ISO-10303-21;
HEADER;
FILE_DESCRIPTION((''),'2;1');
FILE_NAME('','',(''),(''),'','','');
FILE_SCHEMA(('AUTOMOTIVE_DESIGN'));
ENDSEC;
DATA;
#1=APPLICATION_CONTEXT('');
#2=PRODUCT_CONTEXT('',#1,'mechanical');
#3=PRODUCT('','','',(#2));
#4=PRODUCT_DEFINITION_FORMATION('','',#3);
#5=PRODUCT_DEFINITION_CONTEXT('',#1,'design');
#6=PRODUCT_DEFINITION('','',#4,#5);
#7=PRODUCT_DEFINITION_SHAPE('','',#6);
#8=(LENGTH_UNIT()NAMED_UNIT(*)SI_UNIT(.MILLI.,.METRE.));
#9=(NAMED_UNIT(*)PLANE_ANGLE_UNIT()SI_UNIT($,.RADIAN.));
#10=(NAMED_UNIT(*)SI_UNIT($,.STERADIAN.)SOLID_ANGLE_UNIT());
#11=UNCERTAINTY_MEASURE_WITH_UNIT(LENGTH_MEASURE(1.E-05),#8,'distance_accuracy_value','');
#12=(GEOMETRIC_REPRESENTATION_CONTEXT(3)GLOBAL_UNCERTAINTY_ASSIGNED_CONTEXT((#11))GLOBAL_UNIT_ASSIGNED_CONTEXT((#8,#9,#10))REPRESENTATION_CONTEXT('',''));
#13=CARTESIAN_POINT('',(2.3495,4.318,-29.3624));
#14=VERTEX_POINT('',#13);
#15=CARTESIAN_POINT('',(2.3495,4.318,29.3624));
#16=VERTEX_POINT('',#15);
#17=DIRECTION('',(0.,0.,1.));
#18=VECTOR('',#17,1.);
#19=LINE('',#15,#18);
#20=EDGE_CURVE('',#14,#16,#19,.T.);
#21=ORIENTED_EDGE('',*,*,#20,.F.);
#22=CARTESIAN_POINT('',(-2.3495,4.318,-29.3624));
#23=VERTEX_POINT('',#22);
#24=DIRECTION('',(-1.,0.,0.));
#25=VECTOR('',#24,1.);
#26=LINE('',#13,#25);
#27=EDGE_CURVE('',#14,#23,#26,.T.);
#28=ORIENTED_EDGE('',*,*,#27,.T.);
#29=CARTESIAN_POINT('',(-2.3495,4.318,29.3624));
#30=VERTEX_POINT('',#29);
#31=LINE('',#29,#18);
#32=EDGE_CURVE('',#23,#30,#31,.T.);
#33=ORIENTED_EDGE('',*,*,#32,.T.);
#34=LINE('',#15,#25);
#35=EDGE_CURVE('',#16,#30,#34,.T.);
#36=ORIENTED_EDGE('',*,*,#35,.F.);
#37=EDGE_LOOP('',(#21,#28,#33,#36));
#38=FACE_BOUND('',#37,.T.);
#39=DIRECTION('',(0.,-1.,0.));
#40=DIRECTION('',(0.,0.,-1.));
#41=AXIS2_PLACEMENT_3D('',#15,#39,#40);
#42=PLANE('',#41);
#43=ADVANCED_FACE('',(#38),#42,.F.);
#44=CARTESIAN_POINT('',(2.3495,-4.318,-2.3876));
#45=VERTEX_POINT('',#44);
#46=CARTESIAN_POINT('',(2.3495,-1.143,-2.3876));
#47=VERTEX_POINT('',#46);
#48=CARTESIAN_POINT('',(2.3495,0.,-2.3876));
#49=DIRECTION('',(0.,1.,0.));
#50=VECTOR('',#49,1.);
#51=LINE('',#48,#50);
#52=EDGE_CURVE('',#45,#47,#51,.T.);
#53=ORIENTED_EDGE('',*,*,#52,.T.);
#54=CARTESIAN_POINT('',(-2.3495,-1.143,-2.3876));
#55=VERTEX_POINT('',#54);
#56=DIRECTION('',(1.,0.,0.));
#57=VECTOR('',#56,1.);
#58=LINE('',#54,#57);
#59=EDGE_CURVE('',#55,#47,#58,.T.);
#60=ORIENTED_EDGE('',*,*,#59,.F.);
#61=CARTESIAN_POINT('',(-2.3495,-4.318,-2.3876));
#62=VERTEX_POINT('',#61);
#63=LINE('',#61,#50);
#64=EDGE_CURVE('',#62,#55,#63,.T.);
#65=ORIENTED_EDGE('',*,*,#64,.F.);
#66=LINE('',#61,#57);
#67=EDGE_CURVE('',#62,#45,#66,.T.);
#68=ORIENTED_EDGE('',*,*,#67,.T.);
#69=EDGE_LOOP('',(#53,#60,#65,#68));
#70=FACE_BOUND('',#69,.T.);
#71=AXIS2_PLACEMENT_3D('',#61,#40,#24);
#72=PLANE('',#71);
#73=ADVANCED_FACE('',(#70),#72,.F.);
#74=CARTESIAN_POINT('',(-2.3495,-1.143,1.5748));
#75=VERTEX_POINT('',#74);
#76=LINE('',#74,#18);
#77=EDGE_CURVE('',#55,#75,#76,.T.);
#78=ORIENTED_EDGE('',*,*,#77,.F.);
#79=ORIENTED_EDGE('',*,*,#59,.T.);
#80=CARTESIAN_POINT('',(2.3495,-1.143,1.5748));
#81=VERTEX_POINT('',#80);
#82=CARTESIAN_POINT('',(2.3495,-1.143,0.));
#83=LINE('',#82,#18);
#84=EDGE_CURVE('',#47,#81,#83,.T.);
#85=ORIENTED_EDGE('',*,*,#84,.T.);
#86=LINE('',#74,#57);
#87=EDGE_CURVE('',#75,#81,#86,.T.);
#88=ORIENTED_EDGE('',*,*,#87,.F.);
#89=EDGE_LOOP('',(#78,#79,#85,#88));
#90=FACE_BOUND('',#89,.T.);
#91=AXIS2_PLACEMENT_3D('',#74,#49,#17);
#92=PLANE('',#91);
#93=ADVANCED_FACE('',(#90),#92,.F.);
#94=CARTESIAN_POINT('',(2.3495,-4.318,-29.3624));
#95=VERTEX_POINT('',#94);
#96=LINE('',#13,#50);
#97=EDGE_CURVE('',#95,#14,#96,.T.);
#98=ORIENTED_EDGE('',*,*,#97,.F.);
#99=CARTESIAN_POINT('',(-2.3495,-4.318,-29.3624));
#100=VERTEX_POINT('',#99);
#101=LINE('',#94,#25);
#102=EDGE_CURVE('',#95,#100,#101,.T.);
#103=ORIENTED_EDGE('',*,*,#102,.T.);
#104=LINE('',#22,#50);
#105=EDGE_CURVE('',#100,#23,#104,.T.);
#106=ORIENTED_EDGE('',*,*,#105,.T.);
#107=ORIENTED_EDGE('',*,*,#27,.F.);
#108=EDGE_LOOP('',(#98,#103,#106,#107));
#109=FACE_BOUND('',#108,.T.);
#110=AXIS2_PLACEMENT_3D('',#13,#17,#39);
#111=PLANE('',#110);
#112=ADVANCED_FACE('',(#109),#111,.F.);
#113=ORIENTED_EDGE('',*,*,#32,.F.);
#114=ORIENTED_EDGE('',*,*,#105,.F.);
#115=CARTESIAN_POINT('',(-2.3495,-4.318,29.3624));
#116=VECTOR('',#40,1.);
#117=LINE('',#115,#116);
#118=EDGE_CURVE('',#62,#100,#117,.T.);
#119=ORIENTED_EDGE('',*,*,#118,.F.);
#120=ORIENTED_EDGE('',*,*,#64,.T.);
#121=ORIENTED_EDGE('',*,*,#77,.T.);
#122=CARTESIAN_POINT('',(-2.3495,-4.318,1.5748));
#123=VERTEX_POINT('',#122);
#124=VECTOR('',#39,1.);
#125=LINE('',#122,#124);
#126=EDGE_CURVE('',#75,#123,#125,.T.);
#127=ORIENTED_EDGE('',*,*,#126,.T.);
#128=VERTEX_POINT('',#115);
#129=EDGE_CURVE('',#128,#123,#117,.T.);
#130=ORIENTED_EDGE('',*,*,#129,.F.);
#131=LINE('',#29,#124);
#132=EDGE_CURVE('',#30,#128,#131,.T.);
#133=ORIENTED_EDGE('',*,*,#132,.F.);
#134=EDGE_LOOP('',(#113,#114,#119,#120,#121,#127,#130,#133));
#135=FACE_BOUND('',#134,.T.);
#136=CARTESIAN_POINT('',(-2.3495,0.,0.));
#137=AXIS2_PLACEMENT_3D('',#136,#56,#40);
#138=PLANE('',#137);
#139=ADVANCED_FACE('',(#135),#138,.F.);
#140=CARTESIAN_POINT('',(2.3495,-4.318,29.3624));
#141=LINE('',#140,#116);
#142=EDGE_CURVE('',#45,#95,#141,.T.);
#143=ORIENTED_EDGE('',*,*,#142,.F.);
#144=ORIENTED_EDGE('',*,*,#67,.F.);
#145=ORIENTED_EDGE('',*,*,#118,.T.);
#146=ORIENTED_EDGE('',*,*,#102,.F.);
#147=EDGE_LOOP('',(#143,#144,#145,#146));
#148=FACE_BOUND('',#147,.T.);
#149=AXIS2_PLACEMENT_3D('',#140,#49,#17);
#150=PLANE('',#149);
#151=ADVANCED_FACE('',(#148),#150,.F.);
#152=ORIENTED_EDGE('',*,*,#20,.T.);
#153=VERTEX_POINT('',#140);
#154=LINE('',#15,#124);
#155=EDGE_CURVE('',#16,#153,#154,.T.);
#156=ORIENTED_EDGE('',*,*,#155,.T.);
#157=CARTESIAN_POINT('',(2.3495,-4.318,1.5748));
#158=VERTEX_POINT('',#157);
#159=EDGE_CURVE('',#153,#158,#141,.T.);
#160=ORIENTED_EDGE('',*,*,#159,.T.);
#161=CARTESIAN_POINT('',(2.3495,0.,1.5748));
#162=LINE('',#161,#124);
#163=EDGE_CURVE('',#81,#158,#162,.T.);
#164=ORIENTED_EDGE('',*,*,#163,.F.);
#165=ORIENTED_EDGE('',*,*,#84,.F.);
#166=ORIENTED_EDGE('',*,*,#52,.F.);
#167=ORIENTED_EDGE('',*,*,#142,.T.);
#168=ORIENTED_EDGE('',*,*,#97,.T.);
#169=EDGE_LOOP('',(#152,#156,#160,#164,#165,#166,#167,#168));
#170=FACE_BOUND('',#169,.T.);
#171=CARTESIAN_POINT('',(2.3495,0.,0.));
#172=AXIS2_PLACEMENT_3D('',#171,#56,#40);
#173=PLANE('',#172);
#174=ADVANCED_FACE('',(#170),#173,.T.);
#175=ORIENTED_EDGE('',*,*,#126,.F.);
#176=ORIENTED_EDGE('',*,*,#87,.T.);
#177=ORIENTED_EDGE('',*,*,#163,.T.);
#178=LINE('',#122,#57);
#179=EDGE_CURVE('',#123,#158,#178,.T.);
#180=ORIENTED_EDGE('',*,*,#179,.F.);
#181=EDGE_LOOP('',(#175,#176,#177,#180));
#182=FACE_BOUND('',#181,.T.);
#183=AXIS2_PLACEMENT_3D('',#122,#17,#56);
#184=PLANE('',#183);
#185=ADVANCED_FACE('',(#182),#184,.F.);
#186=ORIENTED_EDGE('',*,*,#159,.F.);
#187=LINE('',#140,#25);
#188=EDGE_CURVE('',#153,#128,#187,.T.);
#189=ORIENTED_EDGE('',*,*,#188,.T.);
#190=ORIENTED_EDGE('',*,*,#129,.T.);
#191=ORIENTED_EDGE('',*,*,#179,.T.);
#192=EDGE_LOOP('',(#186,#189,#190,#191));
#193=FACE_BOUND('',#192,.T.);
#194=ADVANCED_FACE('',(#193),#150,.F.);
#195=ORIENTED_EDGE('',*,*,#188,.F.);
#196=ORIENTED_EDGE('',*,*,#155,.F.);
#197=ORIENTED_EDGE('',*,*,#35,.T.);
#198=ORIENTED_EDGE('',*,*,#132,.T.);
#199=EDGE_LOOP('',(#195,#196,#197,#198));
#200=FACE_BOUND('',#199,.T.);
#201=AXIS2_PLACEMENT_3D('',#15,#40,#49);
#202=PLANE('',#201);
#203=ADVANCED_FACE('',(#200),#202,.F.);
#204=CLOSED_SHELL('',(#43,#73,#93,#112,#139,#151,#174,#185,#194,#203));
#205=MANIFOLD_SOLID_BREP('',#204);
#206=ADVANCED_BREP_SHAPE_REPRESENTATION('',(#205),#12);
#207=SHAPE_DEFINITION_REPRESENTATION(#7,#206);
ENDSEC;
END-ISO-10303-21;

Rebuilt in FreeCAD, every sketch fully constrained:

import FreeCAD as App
import Part
import Sketcher
Q = App.Units.Quantity

doc = App.newDocument("Part")
body = doc.addObject("PartDesign::Body", "Body")

sketch1 = body.newObject("Sketcher::SketchObject", "Sketch")
sketch1.AttachmentSupport = (doc.getObject("YZ_Plane"), [""])
sketch1.MapMode = "FlatFace"
sketch1.addGeometry([
    Part.LineSegment(App.Vector(4, 29, 0), App.Vector(-4, 29, 0)),
    Part.LineSegment(App.Vector(-4, 29, 0), App.Vector(-4, -29, 0)),
    Part.LineSegment(App.Vector(-4, -29, 0), App.Vector(4, -29, 0)),
    Part.LineSegment(App.Vector(4, -29, 0), App.Vector(4, 29, 0)),
], False)
sketch1.addConstraint([
    Sketcher.Constraint("Coincident", 0, 2, 1, 1),
    Sketcher.Constraint("Coincident", 1, 2, 2, 1),
    Sketcher.Constraint("Coincident", 2, 2, 3, 1),
    Sketcher.Constraint("Coincident", 3, 2, 0, 1),
    Sketcher.Constraint("Horizontal", 0),
    Sketcher.Constraint("Vertical", 1),
    Sketcher.Constraint("Horizontal", 2),
    Sketcher.Constraint("Vertical", 3),
    Sketcher.Constraint("Symmetric", 0, 2, 2, 2, -1, 1),
    Sketcher.Constraint("DistanceX", 0, 2, 0, 1, Q("0.34 in")),
    Sketcher.Constraint("DistanceY", 1, 2, 1, 1, Q("2.312 in")),
])
pad1 = body.newObject("PartDesign::Pad", "Pad")
pad1.Profile = sketch1
pad1.Length = Q("0.185 in")
pad1.Midplane = True

sketch2 = body.newObject("Sketcher::SketchObject", "Sketch001")
sketch2.AttachmentSupport = (doc.getObject("YZ_Plane"), [""])
sketch2.MapMode = "FlatFace"
sketch2.AttachmentOffset = App.Placement(App.Vector(0, 0, 0.0925 * 25.4), App.Rotation())
sketch2.addGeometry([
    Part.LineSegment(App.Vector(-1.1, 1.6, 0), App.Vector(-4.3, 1.6, 0)),
    Part.LineSegment(App.Vector(-4.3, 1.6, 0), App.Vector(-4.3, -2.4, 0)),
    Part.LineSegment(App.Vector(-4.3, -2.4, 0), App.Vector(-1.1, -2.4, 0)),
    Part.LineSegment(App.Vector(-1.1, -2.4, 0), App.Vector(-1.1, 1.6, 0)),
], False)
sketch2.addConstraint([
    Sketcher.Constraint("Coincident", 0, 2, 1, 1),
    Sketcher.Constraint("Coincident", 1, 2, 2, 1),
    Sketcher.Constraint("Coincident", 2, 2, 3, 1),
    Sketcher.Constraint("Coincident", 3, 2, 0, 1),
    Sketcher.Constraint("Horizontal", 0),
    Sketcher.Constraint("Vertical", 1),
    Sketcher.Constraint("Horizontal", 2),
    Sketcher.Constraint("Vertical", 3),
    Sketcher.Constraint("DistanceX", 0, 2, 0, 1, Q("0.125 in")),
    Sketcher.Constraint("DistanceY", 1, 2, 1, 1, Q("0.156 in")),
    Sketcher.Constraint("DistanceX", 0, 2, -1, 1, Q("0.17 in")),
    Sketcher.Constraint("DistanceY", -1, 1, 0, 2, Q("0.062 in")),
])
pocket1 = body.newObject("PartDesign::Pocket", "Pocket")
pocket1.Profile = sketch2
pocket1.Type = "ThroughAll"
pocket1.Midplane = True

doc.recompute()
